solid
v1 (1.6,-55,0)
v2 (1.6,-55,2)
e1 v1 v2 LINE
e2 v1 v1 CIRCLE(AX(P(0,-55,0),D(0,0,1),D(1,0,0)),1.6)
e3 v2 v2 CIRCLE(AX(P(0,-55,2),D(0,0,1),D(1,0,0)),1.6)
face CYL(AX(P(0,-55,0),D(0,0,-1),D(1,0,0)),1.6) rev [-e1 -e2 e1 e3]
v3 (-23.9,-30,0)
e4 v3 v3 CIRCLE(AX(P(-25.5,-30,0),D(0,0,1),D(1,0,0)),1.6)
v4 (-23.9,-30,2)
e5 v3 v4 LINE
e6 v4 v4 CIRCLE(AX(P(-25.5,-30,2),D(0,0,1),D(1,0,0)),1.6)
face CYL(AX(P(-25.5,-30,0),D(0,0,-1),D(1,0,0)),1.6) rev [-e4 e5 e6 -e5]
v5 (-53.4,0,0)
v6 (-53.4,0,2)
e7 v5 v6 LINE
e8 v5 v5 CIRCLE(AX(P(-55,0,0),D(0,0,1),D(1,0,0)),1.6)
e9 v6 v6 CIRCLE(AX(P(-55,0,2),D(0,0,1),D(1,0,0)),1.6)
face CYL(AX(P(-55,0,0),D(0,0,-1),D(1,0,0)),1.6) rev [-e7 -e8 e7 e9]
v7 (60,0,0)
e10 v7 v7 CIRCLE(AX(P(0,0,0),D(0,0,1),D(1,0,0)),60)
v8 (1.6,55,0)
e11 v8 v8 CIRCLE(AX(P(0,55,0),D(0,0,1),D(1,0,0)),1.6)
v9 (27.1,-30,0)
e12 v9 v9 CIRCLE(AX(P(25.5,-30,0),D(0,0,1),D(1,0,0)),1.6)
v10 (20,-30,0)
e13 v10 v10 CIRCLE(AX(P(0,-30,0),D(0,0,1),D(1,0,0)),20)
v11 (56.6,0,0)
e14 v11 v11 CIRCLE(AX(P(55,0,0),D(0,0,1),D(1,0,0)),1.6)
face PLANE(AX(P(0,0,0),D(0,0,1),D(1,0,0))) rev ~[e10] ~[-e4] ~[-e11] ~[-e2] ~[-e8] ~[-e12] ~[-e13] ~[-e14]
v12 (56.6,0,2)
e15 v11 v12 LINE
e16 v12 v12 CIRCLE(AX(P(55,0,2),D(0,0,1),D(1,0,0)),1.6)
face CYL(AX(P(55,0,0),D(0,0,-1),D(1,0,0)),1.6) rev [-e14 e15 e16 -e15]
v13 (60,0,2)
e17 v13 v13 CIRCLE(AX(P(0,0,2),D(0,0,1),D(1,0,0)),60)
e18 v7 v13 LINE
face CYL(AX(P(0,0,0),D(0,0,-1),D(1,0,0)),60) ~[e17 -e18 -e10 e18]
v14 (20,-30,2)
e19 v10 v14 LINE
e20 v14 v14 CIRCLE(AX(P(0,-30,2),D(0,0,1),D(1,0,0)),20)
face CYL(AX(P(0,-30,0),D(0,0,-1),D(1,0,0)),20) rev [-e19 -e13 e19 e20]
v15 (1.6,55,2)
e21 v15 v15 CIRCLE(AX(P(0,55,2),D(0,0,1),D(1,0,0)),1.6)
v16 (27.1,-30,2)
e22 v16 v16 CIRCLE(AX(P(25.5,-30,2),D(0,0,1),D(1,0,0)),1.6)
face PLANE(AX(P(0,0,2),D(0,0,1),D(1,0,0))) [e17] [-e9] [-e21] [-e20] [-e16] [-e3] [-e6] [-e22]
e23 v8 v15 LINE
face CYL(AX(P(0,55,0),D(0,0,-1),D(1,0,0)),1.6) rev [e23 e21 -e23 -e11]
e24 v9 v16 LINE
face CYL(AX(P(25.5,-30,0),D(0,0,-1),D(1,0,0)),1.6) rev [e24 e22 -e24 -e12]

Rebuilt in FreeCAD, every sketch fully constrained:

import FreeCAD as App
import Part
import Sketcher

V = App.Vector
Q = App.Units.Quantity

doc = App.newDocument("Part")
body = doc.addObject("PartDesign::Body", "Body")

# Sketch on XY plane
sketch1 = body.newObject("Sketcher::SketchObject", "Sketch")
sketch1.AttachmentSupport = (doc.getObject("XY_Plane"), [""])
sketch1.MapMode = "FlatFace"
sketch1.addGeometry(Part.Circle(V(0, 0, 0), V(0, 0, 1), 60), False)
sketch1.addGeometry(Part.Circle(V(-25.5, -30, 0), V(0, 0, 1), 1.6), False)
sketch1.addGeometry(Part.Circle(V(0, -55, 0), V(0, 0, 1), 1.6), False)
sketch1.addGeometry(Part.Circle(V(0, -30, 0), V(0, 0, 1), 20), False)
sketch1.addGeometry(Part.Circle(V(25.5, -30, 0), V(0, 0, 1), 1.6), False)
sketch1.addGeometry(Part.Circle(V(-55, 0, 0), V(0, 0, 1), 1.6), False)
sketch1.addGeometry(Part.Circle(V(55, 0, 0), V(0, 0, 1), 1.6), False)
sketch1.addGeometry(Part.Circle(V(0, 55, 0), V(0, 0, 1), 1.6), False)
sketch1.addConstraint(Sketcher.Constraint("Coincident", 0, 3, -1, 1))
sketch1.addConstraint(Sketcher.Constraint("Equal", 1, 2))
sketch1.addConstraint(Sketcher.Constraint("Equal", 2, 4))
sketch1.addConstraint(Sketcher.Constraint("Equal", 4, 5))
sketch1.addConstraint(Sketcher.Constraint("Equal", 5, 6))
sketch1.addConstraint(Sketcher.Constraint("Equal", 6, 7))
sketch1.addConstraint(Sketcher.Constraint("Symmetric", 5, 3, 6, 3, -1, 1))
sketch1.addConstraint(Sketcher.Constraint("Symmetric", 2, 3, 7, 3, -1, 1))
sketch1.addConstraint(Sketcher.Constraint("Symmetric", 1, 3, 4, 3, -2))
sketch1.addConstraint(Sketcher.Constraint("PointOnObject", 2, 3, -2))
sketch1.addConstraint(Sketcher.Constraint("PointOnObject", 3, 3, -2))
sketch1.addConstraint(Sketcher.Constraint("PointOnObject", 5, 3, -1))
sketch1.addConstraint(Sketcher.Constraint("Horizontal", 1, 3, 3, 3))
sketch1.addConstraint(Sketcher.Constraint("Diameter", 0, Q("120 mm")))
sketch1.addConstraint(Sketcher.Constraint("Diameter", 3, Q("40 mm")))
sketch1.addConstraint(Sketcher.Constraint("Diameter", 1, Q("3.2 mm")))
sketch1.addConstraint(Sketcher.Constraint("DistanceY", 1, 3, -1, 1, Q("30 mm")))
sketch1.addConstraint(Sketcher.Constraint("DistanceY", 2, 3, -1, 1, Q("55 mm")))
sketch1.addConstraint(Sketcher.Constraint("DistanceX", 5, 3, -1, 1, Q("55 mm")))
sketch1.addConstraint(Sketcher.Constraint("DistanceX", 1, 3, 4, 3, Q("51 mm")))
pad1 = body.newObject("PartDesign::Pad", "Pad")
pad1.Profile = sketch1
pad1.Length = 2

doc.recompute()
